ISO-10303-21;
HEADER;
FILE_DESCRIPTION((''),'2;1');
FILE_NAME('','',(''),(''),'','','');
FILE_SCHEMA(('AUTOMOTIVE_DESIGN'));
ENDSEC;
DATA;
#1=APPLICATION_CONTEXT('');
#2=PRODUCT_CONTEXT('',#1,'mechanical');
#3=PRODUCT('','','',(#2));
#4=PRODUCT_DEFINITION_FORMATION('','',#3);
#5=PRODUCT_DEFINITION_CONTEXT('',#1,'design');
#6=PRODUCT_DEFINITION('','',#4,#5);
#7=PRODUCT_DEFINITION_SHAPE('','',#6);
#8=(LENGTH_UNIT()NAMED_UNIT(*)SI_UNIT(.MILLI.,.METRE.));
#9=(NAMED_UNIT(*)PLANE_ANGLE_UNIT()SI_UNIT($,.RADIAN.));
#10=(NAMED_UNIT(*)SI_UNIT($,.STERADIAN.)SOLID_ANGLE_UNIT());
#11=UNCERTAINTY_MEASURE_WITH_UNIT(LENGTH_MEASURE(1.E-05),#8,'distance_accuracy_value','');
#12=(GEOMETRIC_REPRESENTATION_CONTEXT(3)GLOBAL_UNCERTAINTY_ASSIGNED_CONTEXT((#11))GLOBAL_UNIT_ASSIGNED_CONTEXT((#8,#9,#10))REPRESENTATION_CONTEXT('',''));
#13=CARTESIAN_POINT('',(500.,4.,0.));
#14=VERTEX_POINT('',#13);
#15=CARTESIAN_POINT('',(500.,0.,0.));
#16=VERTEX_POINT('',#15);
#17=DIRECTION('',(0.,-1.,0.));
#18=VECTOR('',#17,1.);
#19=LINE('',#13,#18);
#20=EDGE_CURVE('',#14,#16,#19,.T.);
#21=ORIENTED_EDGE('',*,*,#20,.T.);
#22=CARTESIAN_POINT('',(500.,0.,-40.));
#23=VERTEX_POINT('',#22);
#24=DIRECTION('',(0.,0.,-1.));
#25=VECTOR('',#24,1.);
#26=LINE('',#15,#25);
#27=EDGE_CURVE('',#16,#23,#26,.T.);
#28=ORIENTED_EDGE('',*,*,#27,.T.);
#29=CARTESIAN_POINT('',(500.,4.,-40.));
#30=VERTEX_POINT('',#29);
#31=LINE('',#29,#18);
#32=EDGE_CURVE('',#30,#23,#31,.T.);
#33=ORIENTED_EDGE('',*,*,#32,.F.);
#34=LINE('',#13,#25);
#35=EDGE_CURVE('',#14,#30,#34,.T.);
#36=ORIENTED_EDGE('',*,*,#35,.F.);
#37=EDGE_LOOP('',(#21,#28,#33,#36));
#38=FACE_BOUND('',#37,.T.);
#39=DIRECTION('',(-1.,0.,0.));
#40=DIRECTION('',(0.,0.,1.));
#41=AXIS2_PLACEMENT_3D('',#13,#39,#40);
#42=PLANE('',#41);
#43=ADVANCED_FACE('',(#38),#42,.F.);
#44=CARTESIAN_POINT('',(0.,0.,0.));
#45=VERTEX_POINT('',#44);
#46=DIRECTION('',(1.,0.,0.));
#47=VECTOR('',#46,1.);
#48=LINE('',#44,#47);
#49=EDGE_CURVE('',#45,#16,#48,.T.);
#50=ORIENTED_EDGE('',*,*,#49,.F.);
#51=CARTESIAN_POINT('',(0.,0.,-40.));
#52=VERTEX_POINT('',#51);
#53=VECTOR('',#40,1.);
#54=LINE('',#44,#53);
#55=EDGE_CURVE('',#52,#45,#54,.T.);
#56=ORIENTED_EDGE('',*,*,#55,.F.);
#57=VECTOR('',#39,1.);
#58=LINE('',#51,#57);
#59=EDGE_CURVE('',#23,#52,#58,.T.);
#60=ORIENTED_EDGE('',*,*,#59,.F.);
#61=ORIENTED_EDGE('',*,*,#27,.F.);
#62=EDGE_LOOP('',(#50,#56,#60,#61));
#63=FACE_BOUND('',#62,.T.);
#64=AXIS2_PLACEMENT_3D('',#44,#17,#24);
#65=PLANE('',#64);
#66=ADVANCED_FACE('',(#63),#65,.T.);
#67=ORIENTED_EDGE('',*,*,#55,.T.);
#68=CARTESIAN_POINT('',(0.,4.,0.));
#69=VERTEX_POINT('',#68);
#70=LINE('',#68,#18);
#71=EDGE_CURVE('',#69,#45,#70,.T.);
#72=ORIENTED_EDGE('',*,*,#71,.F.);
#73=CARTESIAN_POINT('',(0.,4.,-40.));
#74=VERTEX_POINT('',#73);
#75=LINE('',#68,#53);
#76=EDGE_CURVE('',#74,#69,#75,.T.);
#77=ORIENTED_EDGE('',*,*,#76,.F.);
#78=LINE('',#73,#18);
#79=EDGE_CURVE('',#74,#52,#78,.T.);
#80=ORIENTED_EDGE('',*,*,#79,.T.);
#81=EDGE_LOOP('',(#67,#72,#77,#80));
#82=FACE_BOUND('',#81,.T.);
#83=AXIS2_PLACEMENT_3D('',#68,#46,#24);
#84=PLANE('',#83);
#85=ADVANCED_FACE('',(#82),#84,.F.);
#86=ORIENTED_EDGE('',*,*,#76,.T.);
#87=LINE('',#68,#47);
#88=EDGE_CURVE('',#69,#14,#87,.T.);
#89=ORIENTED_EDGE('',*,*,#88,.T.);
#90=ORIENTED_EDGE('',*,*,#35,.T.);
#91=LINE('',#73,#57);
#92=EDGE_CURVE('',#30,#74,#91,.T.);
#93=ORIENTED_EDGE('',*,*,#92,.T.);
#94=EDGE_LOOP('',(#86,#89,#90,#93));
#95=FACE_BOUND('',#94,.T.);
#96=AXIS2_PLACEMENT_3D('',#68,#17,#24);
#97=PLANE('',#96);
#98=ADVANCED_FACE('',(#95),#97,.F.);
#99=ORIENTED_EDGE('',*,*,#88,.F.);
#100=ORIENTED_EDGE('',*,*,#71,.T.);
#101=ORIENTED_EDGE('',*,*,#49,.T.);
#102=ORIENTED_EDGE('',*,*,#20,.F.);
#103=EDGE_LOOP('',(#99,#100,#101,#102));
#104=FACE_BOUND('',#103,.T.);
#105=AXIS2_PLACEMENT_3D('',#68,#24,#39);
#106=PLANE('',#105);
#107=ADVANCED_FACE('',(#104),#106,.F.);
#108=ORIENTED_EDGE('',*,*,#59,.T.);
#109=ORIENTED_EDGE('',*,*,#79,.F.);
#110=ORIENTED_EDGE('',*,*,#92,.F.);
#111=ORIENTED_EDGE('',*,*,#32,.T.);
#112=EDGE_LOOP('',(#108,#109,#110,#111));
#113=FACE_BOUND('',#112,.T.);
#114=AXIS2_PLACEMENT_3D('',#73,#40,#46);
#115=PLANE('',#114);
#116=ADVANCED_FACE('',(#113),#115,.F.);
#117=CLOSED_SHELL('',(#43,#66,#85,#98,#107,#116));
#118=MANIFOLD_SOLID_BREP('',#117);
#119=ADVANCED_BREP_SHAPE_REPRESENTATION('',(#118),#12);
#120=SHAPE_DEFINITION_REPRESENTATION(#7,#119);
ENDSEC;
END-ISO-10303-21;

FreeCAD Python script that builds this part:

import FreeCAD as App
import Part
import Sketcher
from FreeCAD import Vector

doc = App.newDocument("Part")
params = doc.addObject("Spreadsheet::Sheet", "Params")
for row, (alias, value) in enumerate([
    ("sketch1_width", "500 mm"),
    ("sketch1_height", "40 mm"),
    ("pad1_length", "4 mm"),
], start=1):
    params.set(f"A{row}", alias)
    params.set(f"B{row}", "=" + value)
    params.setAlias(f"B{row}", alias)

body = doc.addObject("PartDesign::Body", "Body")

# Sketch on XZ plane
sketch1 = body.newObject("Sketcher::SketchObject", "Sketch")
sketch1.AttachmentSupport = (doc.getObject("XZ_Plane"), [""])
sketch1.MapMode = "FlatFace"
sketch1.addGeometry([
    Part.LineSegment(Vector(0, -40, 0), Vector(0, 0, 0)),
    Part.LineSegment(Vector(0, 0, 0), Vector(500, 0, 0)),
    Part.LineSegment(Vector(500, 0, 0), Vector(500, -40, 0)),
    Part.LineSegment(Vector(500, -40, 0), Vector(0, -40, 0)),
], False)
sketch1.addConstraint([
    Sketcher.Constraint("Coincident", 0, 2, 1, 1),
    Sketcher.Constraint("Coincident", 1, 2, 2, 1),
    Sketcher.Constraint("Coincident", 2, 2, 3, 1),
    Sketcher.Constraint("Coincident", 3, 2, 0, 1),
    Sketcher.Constraint("Vertical", 0),
    Sketcher.Constraint("Horizontal", 1),
    Sketcher.Constraint("Vertical", 2),
    Sketcher.Constraint("Horizontal", 3),
    Sketcher.Constraint("Coincident", 0, 2, -1, 1),
    Sketcher.Constraint("DistanceX", 1, 1, 1, 2, 500.0),
    Sketcher.Constraint("DistanceY", 0, 1, 0, 2, 40.0),
])
sketch1.setExpression("Constraints[9]", "Params.sketch1_width")
sketch1.setExpression("Constraints[10]", "Params.sketch1_height")
pad1 = body.newObject("PartDesign::Pad", "Pad")
pad1.Profile = sketch1
pad1.setExpression("Length", "Params.pad1_length")
pad1.Reversed = True

doc.recompute()
